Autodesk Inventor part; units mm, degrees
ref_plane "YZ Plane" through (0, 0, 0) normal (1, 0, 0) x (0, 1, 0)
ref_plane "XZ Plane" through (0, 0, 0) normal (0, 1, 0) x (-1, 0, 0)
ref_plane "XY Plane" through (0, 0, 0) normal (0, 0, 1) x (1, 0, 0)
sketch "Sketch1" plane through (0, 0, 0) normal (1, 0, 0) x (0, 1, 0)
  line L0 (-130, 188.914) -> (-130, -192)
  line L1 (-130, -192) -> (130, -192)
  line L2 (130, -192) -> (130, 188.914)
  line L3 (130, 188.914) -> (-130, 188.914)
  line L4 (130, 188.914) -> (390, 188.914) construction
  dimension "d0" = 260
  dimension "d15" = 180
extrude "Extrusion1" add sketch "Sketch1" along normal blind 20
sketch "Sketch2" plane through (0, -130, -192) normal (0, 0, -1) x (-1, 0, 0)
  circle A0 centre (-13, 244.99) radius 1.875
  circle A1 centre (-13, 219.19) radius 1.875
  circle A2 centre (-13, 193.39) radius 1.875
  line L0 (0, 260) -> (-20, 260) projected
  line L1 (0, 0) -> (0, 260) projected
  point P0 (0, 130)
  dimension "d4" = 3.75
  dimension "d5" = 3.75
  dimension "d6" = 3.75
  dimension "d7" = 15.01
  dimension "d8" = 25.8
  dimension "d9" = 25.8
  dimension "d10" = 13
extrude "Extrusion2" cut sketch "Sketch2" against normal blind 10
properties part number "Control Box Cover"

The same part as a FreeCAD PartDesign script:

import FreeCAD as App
import Part
import Sketcher


def add_polygon(sketch, points):
    """Adds a closed chain of lines whose ends are joined by coincident constraints."""
    first, n = sketch.GeometryCount, len(points)
    for a, b in zip(points, points[1:] + points[:1]):
        sketch.addGeometry(Part.LineSegment(App.Vector(*a, 0), App.Vector(*b, 0)), False)
    for i in range(n):
        sketch.addConstraint(Sketcher.Constraint("Coincident", first + i, 2, first + (i + 1) % n, 1))

doc = App.newDocument("Part")
body = doc.addObject("PartDesign::Body", "Body")

# Sketch on YZ plane
sketch1 = doc.addObject("Sketcher::SketchObject", "Sketch")
body.addObject(sketch1)
sketch1.AttachmentSupport = (doc.YZ_Plane, [""])
sketch1.MapMode = "FlatFace"
add_polygon(sketch1, [(130, 188.914), (-130, 188.914), (-130, -192), (130, -192)])  # lines 0-3
sketch1.addConstraint([
    Sketcher.Constraint("Horizontal", 0),
    Sketcher.Constraint("Vertical", 1),
    Sketcher.Constraint("Horizontal", 2),
    Sketcher.Constraint("Vertical", 3),
    Sketcher.Constraint("DistanceX", 0, 2, 0, 1, 260.0),
    Sketcher.Constraint("DistanceX", 0, 2, -1, 1, 130.0),
    Sketcher.Constraint("DistanceY", 1, 2, -1, 1, 192.0),
    Sketcher.Constraint("DistanceY", 1, 2, 1, 1, 380.914),
])
pad1 = doc.addObject("PartDesign::Pad", "Pad")
body.addObject(pad1)
pad1.Profile = sketch1
pad1.Length = 20

# Sketch on XY plane
sketch2 = doc.addObject("Sketcher::SketchObject", "Sketch001")
body.addObject(sketch2)
sketch2.AttachmentSupport = (doc.XY_Plane, [""])
sketch2.MapMode = "FlatFace"
sketch2.AttachmentOffset = App.Placement(App.Vector(0, 0, -192), App.Rotation())
sketch2.addGeometry([
    Part.Circle(App.Vector(13, 114.99, 0), App.Vector(0, 0, 1), 1.875),
    Part.Circle(App.Vector(13, 89.19, 0), App.Vector(0, 0, 1), 1.875),
    Part.Circle(App.Vector(13, 63.39, 0), App.Vector(0, 0, 1), 1.875),
], False)
sketch2.addConstraint([
    Sketcher.Constraint("Equal", 0, 1),
    Sketcher.Constraint("Equal", 1, 2),
    Sketcher.Constraint("Vertical", 0, 3, 1, 3),
    Sketcher.Constraint("Vertical", 1, 3, 2, 3),
    Sketcher.Constraint("Diameter", 0, 3.75),
    Sketcher.Constraint("DistanceX", -1, 1, 0, 3, 13.0),
    Sketcher.Constraint("DistanceY", 1, 3, 0, 3, 25.8),
    Sketcher.Constraint("DistanceY", 2, 3, 1, 3, 25.8),
    Sketcher.Constraint("DistanceY", -1, 1, 0, 3, 114.99),
])
pocket1 = doc.addObject("PartDesign::Pocket", "Pocket")
body.addObject(pocket1)
pocket1.Profile = sketch2
pocket1.Length = 10
pocket1.Reversed = True

doc.recompute()
